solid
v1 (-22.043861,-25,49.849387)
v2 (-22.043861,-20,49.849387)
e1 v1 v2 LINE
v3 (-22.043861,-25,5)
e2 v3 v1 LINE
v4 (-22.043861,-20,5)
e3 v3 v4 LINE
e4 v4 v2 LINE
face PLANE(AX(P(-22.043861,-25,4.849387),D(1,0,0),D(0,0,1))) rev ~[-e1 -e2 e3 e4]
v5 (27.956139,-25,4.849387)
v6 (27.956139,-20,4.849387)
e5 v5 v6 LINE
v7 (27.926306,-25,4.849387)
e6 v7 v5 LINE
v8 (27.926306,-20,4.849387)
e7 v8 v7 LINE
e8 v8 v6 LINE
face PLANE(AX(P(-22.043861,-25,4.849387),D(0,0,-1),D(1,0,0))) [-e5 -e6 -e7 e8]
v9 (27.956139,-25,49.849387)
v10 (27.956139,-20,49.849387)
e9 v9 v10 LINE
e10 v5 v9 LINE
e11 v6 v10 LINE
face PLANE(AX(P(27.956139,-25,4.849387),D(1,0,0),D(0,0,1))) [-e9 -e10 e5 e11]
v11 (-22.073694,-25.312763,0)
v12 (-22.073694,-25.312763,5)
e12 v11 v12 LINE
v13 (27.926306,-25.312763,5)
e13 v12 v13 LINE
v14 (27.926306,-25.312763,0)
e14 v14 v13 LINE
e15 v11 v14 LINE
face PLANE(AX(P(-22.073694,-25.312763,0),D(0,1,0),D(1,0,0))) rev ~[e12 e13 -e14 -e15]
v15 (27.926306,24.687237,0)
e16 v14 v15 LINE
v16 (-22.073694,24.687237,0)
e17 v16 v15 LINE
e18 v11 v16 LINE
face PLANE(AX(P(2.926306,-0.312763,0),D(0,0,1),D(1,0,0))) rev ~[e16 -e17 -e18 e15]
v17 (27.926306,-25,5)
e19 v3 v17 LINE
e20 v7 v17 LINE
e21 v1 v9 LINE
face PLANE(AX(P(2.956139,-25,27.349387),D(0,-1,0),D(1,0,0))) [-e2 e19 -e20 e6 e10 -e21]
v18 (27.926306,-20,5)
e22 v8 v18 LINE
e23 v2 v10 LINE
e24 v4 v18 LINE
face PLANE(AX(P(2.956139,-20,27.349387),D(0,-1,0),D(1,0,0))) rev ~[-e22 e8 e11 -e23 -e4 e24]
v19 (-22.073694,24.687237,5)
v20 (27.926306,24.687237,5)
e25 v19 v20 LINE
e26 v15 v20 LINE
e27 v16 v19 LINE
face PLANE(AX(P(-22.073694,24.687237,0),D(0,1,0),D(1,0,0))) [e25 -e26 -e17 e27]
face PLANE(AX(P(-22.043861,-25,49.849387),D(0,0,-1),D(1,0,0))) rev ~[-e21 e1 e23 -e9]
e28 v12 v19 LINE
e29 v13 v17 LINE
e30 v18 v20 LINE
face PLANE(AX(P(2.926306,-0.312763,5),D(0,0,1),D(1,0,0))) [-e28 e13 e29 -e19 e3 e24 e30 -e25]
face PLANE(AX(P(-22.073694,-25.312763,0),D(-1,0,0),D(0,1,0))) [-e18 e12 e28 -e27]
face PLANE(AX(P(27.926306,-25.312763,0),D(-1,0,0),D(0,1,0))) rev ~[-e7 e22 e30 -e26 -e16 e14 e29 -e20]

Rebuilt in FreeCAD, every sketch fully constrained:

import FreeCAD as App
import Part
import Sketcher

doc = App.newDocument("Part")
body = doc.addObject("PartDesign::Body", "Body")

# Sketch on XY plane
sketch1 = doc.addObject("Sketcher::SketchObject", "Sketch")
body.addObject(sketch1)
sketch1.AttachmentSupport = (doc.XY_Plane, [""])
sketch1.MapMode = "FlatFace"
sketch1.addGeometry([
    Part.LineSegment(App.Vector(-22, 25, 0), App.Vector(-22, -25, 0)),
    Part.LineSegment(App.Vector(-22, -25, 0), App.Vector(28, -25, 0)),
    Part.LineSegment(App.Vector(28, -25, 0), App.Vector(28, 25, 0)),
    Part.LineSegment(App.Vector(28, 25, 0), App.Vector(-22, 25, 0)),
], False)
sketch1.addConstraint([
    Sketcher.Constraint("Coincident", 0, 2, 1, 1),
    Sketcher.Constraint("Coincident", 1, 2, 2, 1),
    Sketcher.Constraint("Coincident", 2, 2, 3, 1),
    Sketcher.Constraint("Coincident", 3, 2, 0, 1),
    Sketcher.Constraint("Vertical", 0),
    Sketcher.Constraint("Horizontal", 1),
    Sketcher.Constraint("Vertical", 2),
    Sketcher.Constraint("Horizontal", 3),
    Sketcher.Constraint("Equal", 3, 0),
    Sketcher.Constraint("DistanceX", 1, 1, 1, 2, 50.0),
    Sketcher.Constraint("DistanceX", 0, 2, -1, 1, 22.073694),
    Sketcher.Constraint("DistanceY", 0, 2, -1, 1, 25.312763),
])
pad1 = doc.addObject("PartDesign::Pad", "Pad")
body.addObject(pad1)
pad1.Profile = sketch1
pad1.Length = 5

# Sketch on XZ plane
sketch2 = doc.addObject("Sketcher::SketchObject", "Sketch001")
body.addObject(sketch2)
sketch2.AttachmentSupport = (doc.XZ_Plane, [""])
sketch2.MapMode = "FlatFace"
sketch2.AttachmentOffset = App.Placement(App.Vector(0, 0, 25), App.Rotation())
sketch2.addGeometry([
    Part.LineSegment(App.Vector(-22, 50, 0), App.Vector(-22, 5, 0)),
    Part.LineSegment(App.Vector(-22, 5, 0), App.Vector(28, 5, 0)),
    Part.LineSegment(App.Vector(28, 5, 0), App.Vector(28, 50, 0)),
    Part.LineSegment(App.Vector(28, 50, 0), App.Vector(-22, 50, 0)),
], False)
sketch2.addConstraint([
    Sketcher.Constraint("Coincident", 0, 2, 1, 1),
    Sketcher.Constraint("Coincident", 1, 2, 2, 1),
    Sketcher.Constraint("Coincident", 2, 2, 3, 1),
    Sketcher.Constraint("Coincident", 3, 2, 0, 1),
    Sketcher.Constraint("Vertical", 0),
    Sketcher.Constraint("Horizontal", 1),
    Sketcher.Constraint("Vertical", 2),
    Sketcher.Constraint("Horizontal", 3),
    Sketcher.Constraint("DistanceX", 1, 1, 1, 2, 50.0),
    Sketcher.Constraint("DistanceY", 0, 2, 0, 1, 45.0),
    Sketcher.Constraint("DistanceX", 0, 2, -1, 1, 22.043861),
    Sketcher.Constraint("DistanceY", -1, 1, 0, 2, 4.849387),
])
pad2 = doc.addObject("PartDesign::Pad", "Pad001")
body.addObject(pad2)
pad2.Profile = sketch2
pad2.Length = 5
pad2.Reversed = True

doc.recompute()
